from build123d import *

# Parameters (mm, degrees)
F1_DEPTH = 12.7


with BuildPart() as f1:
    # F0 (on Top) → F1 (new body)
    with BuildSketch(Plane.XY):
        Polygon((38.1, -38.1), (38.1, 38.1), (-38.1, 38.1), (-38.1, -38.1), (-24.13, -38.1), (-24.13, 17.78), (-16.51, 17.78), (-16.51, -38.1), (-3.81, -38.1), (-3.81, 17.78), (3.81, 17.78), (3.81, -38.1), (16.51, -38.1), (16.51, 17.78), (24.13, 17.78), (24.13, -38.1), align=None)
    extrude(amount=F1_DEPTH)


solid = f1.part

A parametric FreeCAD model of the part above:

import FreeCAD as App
import Part
import Sketcher
from FreeCAD import Vector
Q = App.Units.Quantity

doc = App.newDocument("Part")
body = doc.addObject("PartDesign::Body", "Body")

sketch1 = body.newObject("Sketcher::SketchObject", "Sketch")
sketch1.AttachmentSupport = (doc.getObject("XY_Plane"), [""])
sketch1.MapMode = "FlatFace"
sketch1.addGeometry(Part.LineSegment(Vector(38, -38, 0), Vector(38, 38, 0)), False)
sketch1.addGeometry(Part.LineSegment(Vector(38, 38, 0), Vector(-38, 38, 0)), False)
sketch1.addGeometry(Part.LineSegment(Vector(-38, 38, 0), Vector(-38, -38, 0)), False)
sketch1.addGeometry(Part.LineSegment(Vector(-38, -38, 0), Vector(-24, -38, 0)), False)
sketch1.addGeometry(Part.LineSegment(Vector(-24, -38, 0), Vector(-24, 18, 0)), False)
sketch1.addGeometry(Part.LineSegment(Vector(-24, 18, 0), Vector(-17, 18, 0)), False)
sketch1.addGeometry(Part.LineSegment(Vector(-17, 18, 0), Vector(-17, -38, 0)), False)
sketch1.addGeometry(Part.LineSegment(Vector(-17, -38, 0), Vector(-4, -38, 0)), False)
sketch1.addGeometry(Part.LineSegment(Vector(-4, -38, 0), Vector(-4, 18, 0)), False)
sketch1.addGeometry(Part.LineSegment(Vector(-4, 18, 0), Vector(4, 18, 0)), False)
sketch1.addGeometry(Part.LineSegment(Vector(4, 18, 0), Vector(4, -38, 0)), False)
sketch1.addGeometry(Part.LineSegment(Vector(4, -38, 0), Vector(17, -38, 0)), False)
sketch1.addGeometry(Part.LineSegment(Vector(17, -38, 0), Vector(17, 18, 0)), False)
sketch1.addGeometry(Part.LineSegment(Vector(17, 18, 0), Vector(24, 18, 0)), False)
sketch1.addGeometry(Part.LineSegment(Vector(24, 18, 0), Vector(24, -38, 0)), False)
sketch1.addGeometry(Part.LineSegment(Vector(24, -38, 0), Vector(38, -38, 0)), False)
sketch1.addConstraint(Sketcher.Constraint("Coincident", 0, 2, 1, 1))
sketch1.addConstraint(Sketcher.Constraint("Coincident", 1, 2, 2, 1))
sketch1.addConstraint(Sketcher.Constraint("Coincident", 2, 2, 3, 1))
sketch1.addConstraint(Sketcher.Constraint("Coincident", 3, 2, 4, 1))
sketch1.addConstraint(Sketcher.Constraint("Coincident", 4, 2, 5, 1))
sketch1.addConstraint(Sketcher.Constraint("Coincident", 5, 2, 6, 1))
sketch1.addConstraint(Sketcher.Constraint("Coincident", 6, 2, 7, 1))
sketch1.addConstraint(Sketcher.Constraint("Coincident", 7, 2, 8, 1))
sketch1.addConstraint(Sketcher.Constraint("Coincident", 8, 2, 9, 1))
sketch1.addConstraint(Sketcher.Constraint("Coincident", 9, 2, 10, 1))
sketch1.addConstraint(Sketcher.Constraint("Coincident", 10, 2, 11, 1))
sketch1.addConstraint(Sketcher.Constraint("Coincident", 11, 2, 12, 1))
sketch1.addConstraint(Sketcher.Constraint("Coincident", 12, 2, 13, 1))
sketch1.addConstraint(Sketcher.Constraint("Coincident", 13, 2, 14, 1))
sketch1.addConstraint(Sketcher.Constraint("Coincident", 14, 2, 15, 1))
sketch1.addConstraint(Sketcher.Constraint("Coincident", 15, 2, 0, 1))
sketch1.addConstraint(Sketcher.Constraint("Vertical", 0))
sketch1.addConstraint(Sketcher.Constraint("Horizontal", 1))
sketch1.addConstraint(Sketcher.Constraint("Vertical", 2))
sketch1.addConstraint(Sketcher.Constraint("Horizontal", 3))
sketch1.addConstraint(Sketcher.Constraint("Vertical", 4))
sketch1.addConstraint(Sketcher.Constraint("Horizontal", 5))
sketch1.addConstraint(Sketcher.Constraint("Vertical", 6))
sketch1.addConstraint(Sketcher.Constraint("Horizontal", 7))
sketch1.addConstraint(Sketcher.Constraint("Vertical", 8))
sketch1.addConstraint(Sketcher.Constraint("Horizontal", 9))
sketch1.addConstraint(Sketcher.Constraint("Vertical", 10))
sketch1.addConstraint(Sketcher.Constraint("Horizontal", 11))
sketch1.addConstraint(Sketcher.Constraint("Vertical", 12))
sketch1.addConstraint(Sketcher.Constraint("Horizontal", 13))
sketch1.addConstraint(Sketcher.Constraint("Vertical", 14))
sketch1.addConstraint(Sketcher.Constraint("Horizontal", 15))
sketch1.addConstraint(Sketcher.Constraint("Symmetric", 0, 2, 2, 2, -1, 1))
sketch1.addConstraint(Sketcher.Constraint("Symmetric", 7, 2, 10, 2, -2))
sketch1.addConstraint(Sketcher.Constraint("Symmetric", 5, 2, 12, 2, -2))
sketch1.addConstraint(Sketcher.Constraint("Symmetric", 3, 2, 14, 2, -2))
sketch1.addConstraint(Sketcher.Constraint("Horizontal", 3, 2, 6, 2))
sketch1.addConstraint(Sketcher.Constraint("Horizontal", 5, 2, 8, 2))
sketch1.addConstraint(Sketcher.Constraint("Equal", 5, 9))
sketch1.addConstraint(Sketcher.Constraint("Equal", 1, 0))
sketch1.addConstraint(Sketcher.Constraint("DistanceX", 1, 2, 1, 1, Q("3 in")))
sketch1.addConstraint(Sketcher.Constraint("DistanceX", 5, 1, 5, 2, Q("0.3 in")))
sketch1.addConstraint(Sketcher.Constraint("DistanceX", 7, 1, 7, 2, Q("0.5 in")))
sketch1.addConstraint(Sketcher.Constraint("DistanceY", 4, 1, 4, 2, Q("2.2 in")))
pad1 = body.newObject("PartDesign::Pad", "Pad")
pad1.Profile = sketch1
pad1.Length = Q("0.5 in")

doc.recompute()
